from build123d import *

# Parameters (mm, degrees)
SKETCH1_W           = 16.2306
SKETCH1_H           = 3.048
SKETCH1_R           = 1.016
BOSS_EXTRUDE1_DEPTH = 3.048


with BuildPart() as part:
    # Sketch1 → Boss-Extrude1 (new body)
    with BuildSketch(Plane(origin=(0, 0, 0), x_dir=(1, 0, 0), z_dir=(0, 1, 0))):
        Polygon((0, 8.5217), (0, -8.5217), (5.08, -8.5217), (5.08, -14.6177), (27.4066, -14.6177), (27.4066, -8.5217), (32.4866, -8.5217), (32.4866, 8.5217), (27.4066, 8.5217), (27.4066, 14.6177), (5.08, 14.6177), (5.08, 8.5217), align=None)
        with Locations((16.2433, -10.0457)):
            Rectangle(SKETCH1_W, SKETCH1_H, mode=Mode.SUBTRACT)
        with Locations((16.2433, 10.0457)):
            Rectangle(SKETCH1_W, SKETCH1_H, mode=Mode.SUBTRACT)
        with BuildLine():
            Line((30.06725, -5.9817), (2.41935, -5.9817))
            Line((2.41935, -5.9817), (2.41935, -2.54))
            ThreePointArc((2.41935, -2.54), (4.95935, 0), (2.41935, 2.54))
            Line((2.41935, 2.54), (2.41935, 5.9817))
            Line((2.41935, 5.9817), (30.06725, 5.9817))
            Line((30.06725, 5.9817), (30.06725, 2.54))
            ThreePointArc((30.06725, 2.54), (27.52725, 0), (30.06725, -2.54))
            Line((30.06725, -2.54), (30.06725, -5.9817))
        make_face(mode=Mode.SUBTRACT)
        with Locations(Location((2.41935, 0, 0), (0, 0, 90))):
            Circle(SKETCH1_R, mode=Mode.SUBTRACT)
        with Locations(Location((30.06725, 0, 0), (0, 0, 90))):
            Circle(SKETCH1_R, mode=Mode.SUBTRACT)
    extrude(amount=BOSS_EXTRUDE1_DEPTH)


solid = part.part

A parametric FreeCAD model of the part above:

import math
import FreeCAD as App
import Part
import Sketcher

V = App.Vector
Q = App.Units.Quantity

doc = App.newDocument("Part")
body = doc.addObject("PartDesign::Body", "Body")

sketch1 = body.newObject("Sketcher::SketchObject", "Sketch")
sketch1.AttachmentSupport = (doc.getObject("XZ_Plane"), [""])
sketch1.MapMode = "FlatFace"
sketch1.addGeometry(Part.LineSegment(V(0, -8.5, 0), V(0, 8.5, 0)), False)
sketch1.addGeometry(Part.LineSegment(V(0, 8.5, 0), V(5.1, 8.5, 0)), False)
sketch1.addGeometry(Part.LineSegment(V(5.1, 8.5, 0), V(5.1, 14.6, 0)), False)
sketch1.addGeometry(Part.LineSegment(V(5.1, 14.6, 0), V(27.4, 14.6, 0)), False)
sketch1.addGeometry(Part.LineSegment(V(27.4, 14.6, 0), V(27.4, 8.5, 0)), False)
sketch1.addGeometry(Part.LineSegment(V(27.4, 8.5, 0), V(32.5, 8.5, 0)), False)
sketch1.addGeometry(Part.LineSegment(V(32.5, 8.5, 0), V(32.5, -8.5, 0)), False)
sketch1.addGeometry(Part.LineSegment(V(32.5, -8.5, 0), V(27.4, -8.5, 0)), False)
sketch1.addGeometry(Part.LineSegment(V(27.4, -8.5, 0), V(27.4, -14.6, 0)), False)
sketch1.addGeometry(Part.LineSegment(V(27.4, -14.6, 0), V(5.1, -14.6, 0)), False)
sketch1.addGeometry(Part.LineSegment(V(5.1, -14.6, 0), V(5.1, -8.5, 0)), False)
sketch1.addGeometry(Part.LineSegment(V(5.1, -8.5, 0), V(0, -8.5, 0)), False)
sketch1.addGeometry(Part.LineSegment(V(24.4, 11.6, 0), V(8.1, 11.6, 0)), False)
sketch1.addGeometry(Part.LineSegment(V(8.1, 11.6, 0), V(8.1, 8.5, 0)), False)
sketch1.addGeometry(Part.LineSegment(V(8.1, 8.5, 0), V(24.4, 8.5, 0)), False)
sketch1.addGeometry(Part.LineSegment(V(24.4, 8.5, 0), V(24.4, 11.6, 0)), False)
sketch1.addGeometry(Part.Circle(V(2.4, 0, 0), V(0, 0, 1), 1), False)
sketch1.addGeometry(Part.LineSegment(V(30.1, 2.5, 0), V(30.1, 6, 0)), False)
sketch1.addGeometry(Part.LineSegment(V(30.1, 6, 0), V(2.4, 6, 0)), False)
sketch1.addGeometry(Part.LineSegment(V(2.4, 6, 0), V(2.4, 2.5, 0)), False)
sketch1.addGeometry(Part.ArcOfCircle(Part.Circle(V(2.4, 0, 0), V(0, 0, 1), 2.5), math.radians(-90), math.radians(90)), False)
sketch1.addGeometry(Part.LineSegment(V(2.4, -2.5, 0), V(2.4, -6, 0)), False)
sketch1.addGeometry(Part.LineSegment(V(2.4, -6, 0), V(30.1, -6, 0)), False)
sketch1.addGeometry(Part.LineSegment(V(30.1, -6, 0), V(30.1, -2.5, 0)), False)
sketch1.addGeometry(Part.ArcOfCircle(Part.Circle(V(30.1, 0, 0), V(0, 0, 1), 2.5), math.radians(90), math.radians(270)), False)
sketch1.addGeometry(Part.Circle(V(30.1, 0, 0), V(0, 0, 1), 1), False)
sketch1.addGeometry(Part.LineSegment(V(24.4, -8.5, 0), V(8.1, -8.5, 0)), False)
sketch1.addGeometry(Part.LineSegment(V(8.1, -8.5, 0), V(8.1, -11.6, 0)), False)
sketch1.addGeometry(Part.LineSegment(V(8.1, -11.6, 0), V(24.4, -11.6, 0)), False)
sketch1.addGeometry(Part.LineSegment(V(24.4, -11.6, 0), V(24.4, -8.5, 0)), False)
sketch1.addConstraint(Sketcher.Constraint("Coincident", 0, 2, 1, 1))
sketch1.addConstraint(Sketcher.Constraint("Coincident", 1, 2, 2, 1))
sketch1.addConstraint(Sketcher.Constraint("Coincident", 2, 2, 3, 1))
sketch1.addConstraint(Sketcher.Constraint("Coincident", 3, 2, 4, 1))
sketch1.addConstraint(Sketcher.Constraint("Coincident", 4, 2, 5, 1))
sketch1.addConstraint(Sketcher.Constraint("Coincident", 5, 2, 6, 1))
sketch1.addConstraint(Sketcher.Constraint("Coincident", 6, 2, 7, 1))
sketch1.addConstraint(Sketcher.Constraint("Coincident", 7, 2, 8, 1))
sketch1.addConstraint(Sketcher.Constraint("Coincident", 8, 2, 9, 1))
sketch1.addConstraint(Sketcher.Constraint("Coincident", 9, 2, 10, 1))
sketch1.addConstraint(Sketcher.Constraint("Coincident", 10, 2, 11, 1))
sketch1.addConstraint(Sketcher.Constraint("Coincident", 11, 2, 0, 1))
sketch1.addConstraint(Sketcher.Constraint("Coincident", 12, 2, 13, 1))
sketch1.addConstraint(Sketcher.Constraint("Coincident", 13, 2, 14, 1))
sketch1.addConstraint(Sketcher.Constraint("Coincident", 14, 2, 15, 1))
sketch1.addConstraint(Sketcher.Constraint("Coincident", 15, 2, 12, 1))
sketch1.addConstraint(Sketcher.Constraint("Coincident", 17, 2, 18, 1))
sketch1.addConstraint(Sketcher.Constraint("Coincident", 18, 2, 19, 1))
sketch1.addConstraint(Sketcher.Constraint("Coincident", 19, 2, 20, 2))
sketch1.addConstraint(Sketcher.Constraint("Coincident", 20, 1, 21, 1))
sketch1.addConstraint(Sketcher.Constraint("Coincident", 21, 2, 22, 1))
sketch1.addConstraint(Sketcher.Constraint("Coincident", 22, 2, 23, 1))
sketch1.addConstraint(Sketcher.Constraint("Coincident", 23, 2, 24, 2))
sketch1.addConstraint(Sketcher.Constraint("Coincident", 24, 1, 17, 1))
sketch1.addConstraint(Sketcher.Constraint("Coincident", 26, 2, 27, 1))
sketch1.addConstraint(Sketcher.Constraint("Coincident", 27, 2, 28, 1))
sketch1.addConstraint(Sketcher.Constraint("Coincident", 28, 2, 29, 1))
sketch1.addConstraint(Sketcher.Constraint("Coincident", 29, 2, 26, 1))
sketch1.addConstraint(Sketcher.Constraint("Vertical", 0))
sketch1.addConstraint(Sketcher.Constraint("Horizontal", 1))
sketch1.addConstraint(Sketcher.Constraint("Vertical", 2))
sketch1.addConstraint(Sketcher.Constraint("Horizontal", 3))
sketch1.addConstraint(Sketcher.Constraint("Vertical", 4))
sketch1.addConstraint(Sketcher.Constraint("Horizontal", 5))
sketch1.addConstraint(Sketcher.Constraint("Vertical", 6))
sketch1.addConstraint(Sketcher.Constraint("Horizontal", 7))
sketch1.addConstraint(Sketcher.Constraint("Vertical", 8))
sketch1.addConstraint(Sketcher.Constraint("Horizontal", 9))
sketch1.addConstraint(Sketcher.Constraint("Vertical", 10))
sketch1.addConstraint(Sketcher.Constraint("Horizontal", 11))
sketch1.addConstraint(Sketcher.Constraint("Horizontal", 12))
sketch1.addConstraint(Sketcher.Constraint("Vertical", 13))
sketch1.addConstraint(Sketcher.Constraint("Horizontal", 14))
sketch1.addConstraint(Sketcher.Constraint("Vertical", 15))
sketch1.addConstraint(Sketcher.Constraint("Vertical", 17))
sketch1.addConstraint(Sketcher.Constraint("Horizontal", 18))
sketch1.addConstraint(Sketcher.Constraint("Vertical", 19))
sketch1.addConstraint(Sketcher.Constraint("Vertical", 21))
sketch1.addConstraint(Sketcher.Constraint("Horizontal", 22))
sketch1.addConstraint(Sketcher.Constraint("Vertical", 23))
sketch1.addConstraint(Sketcher.Constraint("Horizontal", 26))
sketch1.addConstraint(Sketcher.Constraint("Vertical", 27))
sketch1.addConstraint(Sketcher.Constraint("Horizontal", 28))
sketch1.addConstraint(Sketcher.Constraint("Vertical", 29))
sketch1.addConstraint(Sketcher.Constraint("Coincident", 20, 3, 16, 3))
sketch1.addConstraint(Sketcher.Constraint("Coincident", 25, 3, 24, 3))
sketch1.addConstraint(Sketcher.Constraint("Equal", 20, 24))
sketch1.addConstraint(Sketcher.Constraint("Equal", 16, 25))
sketch1.addConstraint(Sketcher.Constraint("Symmetric", 0, 2, 11, 2, -1, 1))
sketch1.addConstraint(Sketcher.Constraint("Symmetric", 4, 2, 7, 2, -1))
sketch1.addConstraint(Sketcher.Constraint("Symmetric", 2, 2, 9, 2, -1))
sketch1.addConstraint(Sketcher.Constraint("Symmetric", 19, 2, 20, 1, -1))
sketch1.addConstraint(Sketcher.Constraint("Symmetric", 17, 2, 22, 2, -1))
sketch1.addConstraint(Sketcher.Constraint("Symmetric", 13, 2, 26, 2, -1))
sketch1.addConstraint(Sketcher.Constraint("Symmetric", 15, 2, 28, 2, -1))
sketch1.addConstraint(Sketcher.Constraint("PointOnObject", 24, 3, -1))
sketch1.addConstraint(Sketcher.Constraint("Horizontal", 1, 2, 4, 2))
sketch1.addConstraint(Sketcher.Constraint("Horizontal", 5, 2, 13, 2))
sketch1.addConstraint(Sketcher.Constraint("Vertical", 25, 3, 17, 2))
sketch1.addConstraint(Sketcher.Constraint("Vertical", 20, 3, 18, 2))
sketch1.addConstraint(Sketcher.Constraint("Equal", 1, 5))
sketch1.addConstraint(Sketcher.Constraint("Radius", 20, Q("0.1 in")))
sketch1.addConstraint(Sketcher.Constraint("Diameter", 16, Q("0.08 in")))
sketch1.addConstraint(Sketcher.Constraint("DistanceX", 1, 1, 1, 2, Q("0.2 in")))
sketch1.addConstraint(Sketcher.Constraint("DistanceY", 2, 1, 2, 2, Q("0.24 in")))
sketch1.addConstraint(Sketcher.Constraint("DistanceY", 13, 2, 13, 1, Q("0.12 in")))
sketch1.addConstraint(Sketcher.Constraint("DistanceY", 17, 2, 5, 2, Q("0.1 in")))
sketch1.addConstraint(Sketcher.Constraint("DistanceX", 3, 1, 3, 2, Q("0.879 in")))
sketch1.addConstraint(Sketcher.Constraint("DistanceX", 12, 2, 12, 1, Q("0.639 in")))
sketch1.addConstraint(Sketcher.Constraint("DistanceY", 0, 1, 0, 2, Q("0.671 in")))
sketch1.addConstraint(Sketcher.Constraint("DistanceX", -1, 1, 12, 2, Q("0.32 in")))
sketch1.addConstraint(Sketcher.Constraint("DistanceX", 18, 2, 18, 1, Q("1.0885 in")))
sketch1.addConstraint(Sketcher.Constraint("DistanceX", -1, 1, 16, 3, 2.41935))
pad1 = body.newObject("PartDesign::Pad", "Pad")
pad1.Profile = sketch1
pad1.Length = Q("0.12 in")
pad1.Reversed = True

doc.recompute()
